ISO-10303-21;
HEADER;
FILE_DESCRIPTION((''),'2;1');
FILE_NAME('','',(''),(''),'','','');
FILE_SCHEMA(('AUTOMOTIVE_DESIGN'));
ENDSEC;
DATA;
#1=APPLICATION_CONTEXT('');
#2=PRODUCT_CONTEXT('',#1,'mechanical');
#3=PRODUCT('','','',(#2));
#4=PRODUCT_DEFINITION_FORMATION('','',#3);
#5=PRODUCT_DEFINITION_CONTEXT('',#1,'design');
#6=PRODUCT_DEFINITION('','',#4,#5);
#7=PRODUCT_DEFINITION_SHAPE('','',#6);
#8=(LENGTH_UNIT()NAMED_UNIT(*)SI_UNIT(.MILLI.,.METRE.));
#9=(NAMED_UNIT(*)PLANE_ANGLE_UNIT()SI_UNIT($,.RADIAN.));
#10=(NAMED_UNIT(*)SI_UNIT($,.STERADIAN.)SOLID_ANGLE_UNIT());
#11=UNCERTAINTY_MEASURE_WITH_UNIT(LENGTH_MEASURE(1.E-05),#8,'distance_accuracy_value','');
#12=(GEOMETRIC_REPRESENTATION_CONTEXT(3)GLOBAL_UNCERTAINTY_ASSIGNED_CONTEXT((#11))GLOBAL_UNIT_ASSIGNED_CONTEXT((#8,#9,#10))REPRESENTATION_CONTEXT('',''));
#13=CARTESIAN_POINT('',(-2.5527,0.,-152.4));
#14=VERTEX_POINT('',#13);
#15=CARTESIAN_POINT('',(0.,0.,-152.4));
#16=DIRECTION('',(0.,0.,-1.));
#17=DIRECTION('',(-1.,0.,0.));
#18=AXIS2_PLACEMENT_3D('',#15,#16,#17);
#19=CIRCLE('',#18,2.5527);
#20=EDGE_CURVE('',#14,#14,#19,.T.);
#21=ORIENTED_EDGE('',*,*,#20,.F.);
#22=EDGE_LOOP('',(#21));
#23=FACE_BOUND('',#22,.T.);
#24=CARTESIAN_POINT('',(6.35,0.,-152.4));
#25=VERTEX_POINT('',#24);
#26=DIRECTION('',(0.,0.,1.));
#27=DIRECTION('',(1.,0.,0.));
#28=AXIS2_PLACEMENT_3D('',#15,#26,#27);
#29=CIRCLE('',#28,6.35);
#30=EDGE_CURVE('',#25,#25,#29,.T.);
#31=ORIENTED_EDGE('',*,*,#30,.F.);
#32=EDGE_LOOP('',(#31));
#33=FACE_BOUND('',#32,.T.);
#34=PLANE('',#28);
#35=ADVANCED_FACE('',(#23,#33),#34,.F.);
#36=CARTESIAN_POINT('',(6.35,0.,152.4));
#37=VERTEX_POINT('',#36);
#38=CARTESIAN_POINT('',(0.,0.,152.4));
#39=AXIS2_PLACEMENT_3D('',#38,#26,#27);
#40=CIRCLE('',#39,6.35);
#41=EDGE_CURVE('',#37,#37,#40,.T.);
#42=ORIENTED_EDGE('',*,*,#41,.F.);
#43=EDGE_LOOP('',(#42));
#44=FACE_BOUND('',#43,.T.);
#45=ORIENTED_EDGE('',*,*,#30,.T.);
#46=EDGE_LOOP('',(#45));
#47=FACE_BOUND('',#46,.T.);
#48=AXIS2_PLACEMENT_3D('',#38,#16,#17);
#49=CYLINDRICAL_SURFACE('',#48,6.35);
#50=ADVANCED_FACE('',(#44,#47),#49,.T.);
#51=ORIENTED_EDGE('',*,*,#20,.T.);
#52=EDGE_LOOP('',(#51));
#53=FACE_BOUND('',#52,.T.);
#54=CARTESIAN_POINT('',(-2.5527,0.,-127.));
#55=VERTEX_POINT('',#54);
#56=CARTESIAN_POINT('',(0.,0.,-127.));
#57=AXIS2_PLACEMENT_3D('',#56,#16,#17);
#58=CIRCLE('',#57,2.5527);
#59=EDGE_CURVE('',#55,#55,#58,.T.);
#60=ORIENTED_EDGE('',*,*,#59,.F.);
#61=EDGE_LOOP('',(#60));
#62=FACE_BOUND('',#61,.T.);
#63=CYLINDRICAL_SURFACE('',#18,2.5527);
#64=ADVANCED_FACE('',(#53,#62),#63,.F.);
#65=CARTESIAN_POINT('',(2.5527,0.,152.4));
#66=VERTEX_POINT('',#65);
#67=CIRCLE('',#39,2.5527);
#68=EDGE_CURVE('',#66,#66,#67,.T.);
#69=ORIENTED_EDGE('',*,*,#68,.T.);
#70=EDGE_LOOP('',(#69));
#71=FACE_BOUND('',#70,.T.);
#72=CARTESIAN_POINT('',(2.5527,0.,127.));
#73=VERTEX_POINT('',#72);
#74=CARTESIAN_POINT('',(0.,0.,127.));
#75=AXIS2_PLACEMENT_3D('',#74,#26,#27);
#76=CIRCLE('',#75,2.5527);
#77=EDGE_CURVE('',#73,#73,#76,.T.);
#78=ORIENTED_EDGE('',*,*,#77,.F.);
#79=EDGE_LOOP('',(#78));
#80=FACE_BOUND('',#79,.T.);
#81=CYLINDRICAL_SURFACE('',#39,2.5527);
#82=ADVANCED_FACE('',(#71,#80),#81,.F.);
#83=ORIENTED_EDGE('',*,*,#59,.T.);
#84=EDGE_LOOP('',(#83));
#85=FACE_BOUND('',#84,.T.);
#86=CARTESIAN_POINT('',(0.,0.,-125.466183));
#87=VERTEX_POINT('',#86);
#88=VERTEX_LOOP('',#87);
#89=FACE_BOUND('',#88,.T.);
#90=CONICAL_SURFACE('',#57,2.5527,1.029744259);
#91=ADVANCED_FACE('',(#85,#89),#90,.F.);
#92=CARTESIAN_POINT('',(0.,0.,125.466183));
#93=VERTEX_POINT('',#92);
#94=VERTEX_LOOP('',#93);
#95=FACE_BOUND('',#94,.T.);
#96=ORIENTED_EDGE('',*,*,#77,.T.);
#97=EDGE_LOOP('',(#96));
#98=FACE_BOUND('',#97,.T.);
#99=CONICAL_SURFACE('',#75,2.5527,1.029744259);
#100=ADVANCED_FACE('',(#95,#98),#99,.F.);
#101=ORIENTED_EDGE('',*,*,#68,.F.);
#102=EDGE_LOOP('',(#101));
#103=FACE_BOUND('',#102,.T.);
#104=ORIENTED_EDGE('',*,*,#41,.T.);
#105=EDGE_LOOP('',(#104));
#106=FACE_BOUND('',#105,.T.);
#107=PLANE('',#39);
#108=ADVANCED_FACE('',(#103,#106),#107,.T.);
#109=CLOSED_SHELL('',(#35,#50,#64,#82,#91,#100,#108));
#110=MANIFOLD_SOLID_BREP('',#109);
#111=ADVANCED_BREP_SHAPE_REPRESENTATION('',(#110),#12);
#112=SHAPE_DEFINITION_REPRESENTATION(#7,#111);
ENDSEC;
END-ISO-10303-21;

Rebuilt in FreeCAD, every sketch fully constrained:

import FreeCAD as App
import Part
import Sketcher
from FreeCAD import Vector
Q = App.Units.Quantity


def add_polygon(sketch, points):
    """Adds a closed chain of lines whose ends are joined by coincident constraints."""
    first, n = sketch.GeometryCount, len(points)
    for a, b in zip(points, points[1:] + points[:1]):
        sketch.addGeometry(Part.LineSegment(App.Vector(*a, 0), App.Vector(*b, 0)), False)
    for i in range(n):
        sketch.addConstraint(Sketcher.Constraint("Coincident", first + i, 2, first + (i + 1) % n, 1))

doc = App.newDocument("Part")
params = doc.addObject("Spreadsheet::Sheet", "Params")
for row, (alias, value) in enumerate([
    ("sketch1_diameter", "0.5 in"),
    ("pad1_length", "6 in"),
    ("pad1_length2", "6 in"),
    ("sketch2_height", "1 in"),
    ("groove_angle", "360 deg"),
], start=1):
    params.set(f"A{row}", alias)
    params.set(f"B{row}", "=" + value)
    params.setAlias(f"B{row}", alias)

body = doc.addObject("PartDesign::Body", "Body")

sketch1 = doc.addObject("Sketcher::SketchObject", "Sketch")
body.addObject(sketch1)
sketch1.AttachmentSupport = (doc.XY_Plane, [""])
sketch1.MapMode = "FlatFace"
sketch1.addGeometry(Part.Circle(Vector(0, 0, 0), Vector(0, 0, 1), 6), False)
sketch1.addConstraint([
    Sketcher.Constraint("Coincident", 0, 3, -1, 1),
    Sketcher.Constraint("Diameter", 0, Q("0.5 in")),
])
sketch1.setExpression("Constraints[1]", "Params.sketch1_diameter")
pad1 = doc.addObject("PartDesign::Pad", "Pad")
body.addObject(pad1)
pad1.Profile = sketch1
pad1.Type = "TwoLengths"
pad1.setExpression("Length", "Params.pad1_length")
pad1.setExpression("Length2", "Params.pad1_length2")

sketch2 = doc.addObject("Sketcher::SketchObject", "Sketch001")
body.addObject(sketch2)
sketch2.AttachmentSupport = (doc.YZ_Plane, [""])
sketch2.MapMode = "FlatFace"
add_polygon(sketch2, [(0, -125.5), (0, -152.4), (2.6, -152.4), (2.6, -127)])
sketch2.addConstraint([
    Sketcher.Constraint("Vertical", 0),
    Sketcher.Constraint("Horizontal", 1),
    Sketcher.Constraint("Vertical", 2),
    Sketcher.Constraint("PointOnObject", 0, 2, -2),
    Sketcher.Constraint("DistanceY", 2, 1, 2, 2, Q("1 in")),
    Sketcher.Constraint("DistanceY", 0, 2, -1, 1, Q("6 in")),
    Sketcher.Constraint("Angle", 3, Q("149 deg")),
    Sketcher.Constraint("DistanceX", 1, 1, 1, 2, Q("0.1005 in")),
])
sketch2.setExpression("Constraints[8]", "Params.sketch2_height")
groove = doc.addObject("PartDesign::Groove", "Groove")
body.addObject(groove)
groove.Profile = sketch2
groove.ReferenceAxis = (sketch2, ["V_Axis"])
groove.setExpression("Angle", "Params.groove_angle")
doc.recompute()

mirrored = doc.addObject("PartDesign::Mirrored", "Mirrored")
body.addObject(mirrored)
mirrored.Originals = [groove]
mirrored.MirrorPlane = (doc.XY_Plane, [""])
body.Tip = mirrored

doc.recompute()
